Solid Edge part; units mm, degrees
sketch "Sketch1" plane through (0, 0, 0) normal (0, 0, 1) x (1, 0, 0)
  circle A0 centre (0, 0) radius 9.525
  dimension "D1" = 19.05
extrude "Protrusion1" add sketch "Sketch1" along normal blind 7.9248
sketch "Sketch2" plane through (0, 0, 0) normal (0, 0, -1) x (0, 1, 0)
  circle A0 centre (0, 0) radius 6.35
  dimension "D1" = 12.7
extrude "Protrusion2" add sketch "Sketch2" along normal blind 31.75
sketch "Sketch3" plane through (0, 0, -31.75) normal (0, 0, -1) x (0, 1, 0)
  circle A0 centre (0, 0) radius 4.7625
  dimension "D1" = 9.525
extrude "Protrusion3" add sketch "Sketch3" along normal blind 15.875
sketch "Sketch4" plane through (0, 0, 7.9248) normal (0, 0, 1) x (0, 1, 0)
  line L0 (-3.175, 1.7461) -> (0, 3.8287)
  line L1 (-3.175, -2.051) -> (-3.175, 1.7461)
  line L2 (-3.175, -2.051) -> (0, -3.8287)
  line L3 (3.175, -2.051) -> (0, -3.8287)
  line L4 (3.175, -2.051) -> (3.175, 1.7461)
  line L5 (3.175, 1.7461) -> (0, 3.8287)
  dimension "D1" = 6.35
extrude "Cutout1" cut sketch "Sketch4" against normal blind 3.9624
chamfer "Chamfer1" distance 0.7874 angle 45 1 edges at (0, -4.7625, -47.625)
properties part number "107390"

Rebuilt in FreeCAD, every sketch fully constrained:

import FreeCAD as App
import Part
import Sketcher
from FreeCAD import Vector
Q = App.Units.Quantity


def edges_at(feature, points):
    """Names of the edges that pass closest to the given points."""
    edges = feature.Shape.Edges
    near = lambda p: min(range(len(edges)), key=lambda i: edges[i].distToShape(Part.Vertex(*p))[0])
    return sorted({f"Edge{near(p) + 1}" for p in points})


def add_polygon(sketch, points):
    """Adds a closed chain of lines whose ends are joined by coincident constraints."""
    first, n = sketch.GeometryCount, len(points)
    for a, b in zip(points, points[1:] + points[:1]):
        sketch.addGeometry(Part.LineSegment(App.Vector(*a, 0), App.Vector(*b, 0)), False)
    for i in range(n):
        sketch.addConstraint(Sketcher.Constraint("Coincident", first + i, 2, first + (i + 1) % n, 1))

doc = App.newDocument("Part")
body = doc.addObject("PartDesign::Body", "Body")

sketch1 = doc.addObject("Sketcher::SketchObject", "Sketch")
body.addObject(sketch1)
sketch1.AttachmentSupport = (doc.XY_Plane, [""])
sketch1.MapMode = "FlatFace"
sketch1.addGeometry(Part.Circle(Vector(0, 0, 0), Vector(0, 0, 1), 9.525), False)
sketch1.addConstraint([
    Sketcher.Constraint("Coincident", 0, 3, -1, 1),
    Sketcher.Constraint("Diameter", 0, Q("0.75 in")),
])
pad1 = doc.addObject("PartDesign::Pad", "Pad")
body.addObject(pad1)
pad1.Profile = sketch1
pad1.Length = Q("0.312 in")

sketch2 = doc.addObject("Sketcher::SketchObject", "Sketch001")
body.addObject(sketch2)
sketch2.AttachmentSupport = (doc.XY_Plane, [""])
sketch2.MapMode = "FlatFace"
sketch2.addGeometry(Part.Circle(Vector(0, 0, 0), Vector(0, 0, 1), 6.35), False)
sketch2.addConstraint([
    Sketcher.Constraint("Coincident", 0, 3, -1, 1),
    Sketcher.Constraint("Diameter", 0, Q("0.5 in")),
])
pad2 = doc.addObject("PartDesign::Pad", "Pad001")
body.addObject(pad2)
pad2.Profile = sketch2
pad2.Length = Q("1.25 in")
pad2.Reversed = True

sketch3 = doc.addObject("Sketcher::SketchObject", "Sketch002")
body.addObject(sketch3)
sketch3.AttachmentSupport = (doc.XY_Plane, [""])
sketch3.MapMode = "FlatFace"
sketch3.AttachmentOffset = App.Placement(Vector(0, 0, -1.25 * 25.4), App.Rotation())
sketch3.addGeometry(Part.Circle(Vector(0, 0, 0), Vector(0, 0, 1), 4.7625), False)
sketch3.addConstraint([
    Sketcher.Constraint("Coincident", 0, 3, -1, 1),
    Sketcher.Constraint("Diameter", 0, Q("0.375 in")),
])
pad3 = doc.addObject("PartDesign::Pad", "Pad002")
body.addObject(pad3)
pad3.Profile = sketch3
pad3.Length = Q("0.625 in")
pad3.Reversed = True

sketch4 = doc.addObject("Sketcher::SketchObject", "Sketch003")
body.addObject(sketch4)
sketch4.AttachmentSupport = (doc.XY_Plane, [""])
sketch4.MapMode = "FlatFace"
sketch4.AttachmentOffset = App.Placement(Vector(0, 0, 0.312 * 25.4), App.Rotation())
add_polygon(sketch4, [(-3.8287, 0), (-1.7461, -3.175), (2.051, -3.175), (3.8287, 0), (2.051, 3.175), (-1.7461, 3.175)])
sketch4.addConstraint([
    Sketcher.Constraint("Horizontal", 1),
    Sketcher.Constraint("Horizontal", 4),
    Sketcher.Constraint("Symmetric", 2, 2, 5, 2, -1, 1),
    Sketcher.Constraint("Symmetric", 1, 2, 3, 2, -1),
    Sketcher.Constraint("PointOnObject", 2, 2, -1),
    Sketcher.Constraint("Vertical", 0, 2, 4, 2),
    Sketcher.Constraint("DistanceX", 1, 2, 2, 2, Q("0.07 in")),
    Sketcher.Constraint("DistanceY", 1, 2, 3, 2, Q("0.25 in")),
    Sketcher.Constraint("DistanceX", 1, 1, 1, 2, Q("0.1495 in")),
    Sketcher.Constraint("DistanceX", 5, 2, 0, 2, Q("0.082 in")),
])
pocket1 = doc.addObject("PartDesign::Pocket", "Pocket")
body.addObject(pocket1)
pocket1.Profile = sketch4
pocket1.Length = Q("0.156 in")
doc.recompute()

chamfer = doc.addObject("PartDesign::Chamfer", "Chamfer")
body.addObject(chamfer)
chamfer.Base = (pocket1, edges_at(pocket1, [(0, -4.763, -47.625)]))
chamfer.Size = Q("0.031 in")

doc.recompute()
